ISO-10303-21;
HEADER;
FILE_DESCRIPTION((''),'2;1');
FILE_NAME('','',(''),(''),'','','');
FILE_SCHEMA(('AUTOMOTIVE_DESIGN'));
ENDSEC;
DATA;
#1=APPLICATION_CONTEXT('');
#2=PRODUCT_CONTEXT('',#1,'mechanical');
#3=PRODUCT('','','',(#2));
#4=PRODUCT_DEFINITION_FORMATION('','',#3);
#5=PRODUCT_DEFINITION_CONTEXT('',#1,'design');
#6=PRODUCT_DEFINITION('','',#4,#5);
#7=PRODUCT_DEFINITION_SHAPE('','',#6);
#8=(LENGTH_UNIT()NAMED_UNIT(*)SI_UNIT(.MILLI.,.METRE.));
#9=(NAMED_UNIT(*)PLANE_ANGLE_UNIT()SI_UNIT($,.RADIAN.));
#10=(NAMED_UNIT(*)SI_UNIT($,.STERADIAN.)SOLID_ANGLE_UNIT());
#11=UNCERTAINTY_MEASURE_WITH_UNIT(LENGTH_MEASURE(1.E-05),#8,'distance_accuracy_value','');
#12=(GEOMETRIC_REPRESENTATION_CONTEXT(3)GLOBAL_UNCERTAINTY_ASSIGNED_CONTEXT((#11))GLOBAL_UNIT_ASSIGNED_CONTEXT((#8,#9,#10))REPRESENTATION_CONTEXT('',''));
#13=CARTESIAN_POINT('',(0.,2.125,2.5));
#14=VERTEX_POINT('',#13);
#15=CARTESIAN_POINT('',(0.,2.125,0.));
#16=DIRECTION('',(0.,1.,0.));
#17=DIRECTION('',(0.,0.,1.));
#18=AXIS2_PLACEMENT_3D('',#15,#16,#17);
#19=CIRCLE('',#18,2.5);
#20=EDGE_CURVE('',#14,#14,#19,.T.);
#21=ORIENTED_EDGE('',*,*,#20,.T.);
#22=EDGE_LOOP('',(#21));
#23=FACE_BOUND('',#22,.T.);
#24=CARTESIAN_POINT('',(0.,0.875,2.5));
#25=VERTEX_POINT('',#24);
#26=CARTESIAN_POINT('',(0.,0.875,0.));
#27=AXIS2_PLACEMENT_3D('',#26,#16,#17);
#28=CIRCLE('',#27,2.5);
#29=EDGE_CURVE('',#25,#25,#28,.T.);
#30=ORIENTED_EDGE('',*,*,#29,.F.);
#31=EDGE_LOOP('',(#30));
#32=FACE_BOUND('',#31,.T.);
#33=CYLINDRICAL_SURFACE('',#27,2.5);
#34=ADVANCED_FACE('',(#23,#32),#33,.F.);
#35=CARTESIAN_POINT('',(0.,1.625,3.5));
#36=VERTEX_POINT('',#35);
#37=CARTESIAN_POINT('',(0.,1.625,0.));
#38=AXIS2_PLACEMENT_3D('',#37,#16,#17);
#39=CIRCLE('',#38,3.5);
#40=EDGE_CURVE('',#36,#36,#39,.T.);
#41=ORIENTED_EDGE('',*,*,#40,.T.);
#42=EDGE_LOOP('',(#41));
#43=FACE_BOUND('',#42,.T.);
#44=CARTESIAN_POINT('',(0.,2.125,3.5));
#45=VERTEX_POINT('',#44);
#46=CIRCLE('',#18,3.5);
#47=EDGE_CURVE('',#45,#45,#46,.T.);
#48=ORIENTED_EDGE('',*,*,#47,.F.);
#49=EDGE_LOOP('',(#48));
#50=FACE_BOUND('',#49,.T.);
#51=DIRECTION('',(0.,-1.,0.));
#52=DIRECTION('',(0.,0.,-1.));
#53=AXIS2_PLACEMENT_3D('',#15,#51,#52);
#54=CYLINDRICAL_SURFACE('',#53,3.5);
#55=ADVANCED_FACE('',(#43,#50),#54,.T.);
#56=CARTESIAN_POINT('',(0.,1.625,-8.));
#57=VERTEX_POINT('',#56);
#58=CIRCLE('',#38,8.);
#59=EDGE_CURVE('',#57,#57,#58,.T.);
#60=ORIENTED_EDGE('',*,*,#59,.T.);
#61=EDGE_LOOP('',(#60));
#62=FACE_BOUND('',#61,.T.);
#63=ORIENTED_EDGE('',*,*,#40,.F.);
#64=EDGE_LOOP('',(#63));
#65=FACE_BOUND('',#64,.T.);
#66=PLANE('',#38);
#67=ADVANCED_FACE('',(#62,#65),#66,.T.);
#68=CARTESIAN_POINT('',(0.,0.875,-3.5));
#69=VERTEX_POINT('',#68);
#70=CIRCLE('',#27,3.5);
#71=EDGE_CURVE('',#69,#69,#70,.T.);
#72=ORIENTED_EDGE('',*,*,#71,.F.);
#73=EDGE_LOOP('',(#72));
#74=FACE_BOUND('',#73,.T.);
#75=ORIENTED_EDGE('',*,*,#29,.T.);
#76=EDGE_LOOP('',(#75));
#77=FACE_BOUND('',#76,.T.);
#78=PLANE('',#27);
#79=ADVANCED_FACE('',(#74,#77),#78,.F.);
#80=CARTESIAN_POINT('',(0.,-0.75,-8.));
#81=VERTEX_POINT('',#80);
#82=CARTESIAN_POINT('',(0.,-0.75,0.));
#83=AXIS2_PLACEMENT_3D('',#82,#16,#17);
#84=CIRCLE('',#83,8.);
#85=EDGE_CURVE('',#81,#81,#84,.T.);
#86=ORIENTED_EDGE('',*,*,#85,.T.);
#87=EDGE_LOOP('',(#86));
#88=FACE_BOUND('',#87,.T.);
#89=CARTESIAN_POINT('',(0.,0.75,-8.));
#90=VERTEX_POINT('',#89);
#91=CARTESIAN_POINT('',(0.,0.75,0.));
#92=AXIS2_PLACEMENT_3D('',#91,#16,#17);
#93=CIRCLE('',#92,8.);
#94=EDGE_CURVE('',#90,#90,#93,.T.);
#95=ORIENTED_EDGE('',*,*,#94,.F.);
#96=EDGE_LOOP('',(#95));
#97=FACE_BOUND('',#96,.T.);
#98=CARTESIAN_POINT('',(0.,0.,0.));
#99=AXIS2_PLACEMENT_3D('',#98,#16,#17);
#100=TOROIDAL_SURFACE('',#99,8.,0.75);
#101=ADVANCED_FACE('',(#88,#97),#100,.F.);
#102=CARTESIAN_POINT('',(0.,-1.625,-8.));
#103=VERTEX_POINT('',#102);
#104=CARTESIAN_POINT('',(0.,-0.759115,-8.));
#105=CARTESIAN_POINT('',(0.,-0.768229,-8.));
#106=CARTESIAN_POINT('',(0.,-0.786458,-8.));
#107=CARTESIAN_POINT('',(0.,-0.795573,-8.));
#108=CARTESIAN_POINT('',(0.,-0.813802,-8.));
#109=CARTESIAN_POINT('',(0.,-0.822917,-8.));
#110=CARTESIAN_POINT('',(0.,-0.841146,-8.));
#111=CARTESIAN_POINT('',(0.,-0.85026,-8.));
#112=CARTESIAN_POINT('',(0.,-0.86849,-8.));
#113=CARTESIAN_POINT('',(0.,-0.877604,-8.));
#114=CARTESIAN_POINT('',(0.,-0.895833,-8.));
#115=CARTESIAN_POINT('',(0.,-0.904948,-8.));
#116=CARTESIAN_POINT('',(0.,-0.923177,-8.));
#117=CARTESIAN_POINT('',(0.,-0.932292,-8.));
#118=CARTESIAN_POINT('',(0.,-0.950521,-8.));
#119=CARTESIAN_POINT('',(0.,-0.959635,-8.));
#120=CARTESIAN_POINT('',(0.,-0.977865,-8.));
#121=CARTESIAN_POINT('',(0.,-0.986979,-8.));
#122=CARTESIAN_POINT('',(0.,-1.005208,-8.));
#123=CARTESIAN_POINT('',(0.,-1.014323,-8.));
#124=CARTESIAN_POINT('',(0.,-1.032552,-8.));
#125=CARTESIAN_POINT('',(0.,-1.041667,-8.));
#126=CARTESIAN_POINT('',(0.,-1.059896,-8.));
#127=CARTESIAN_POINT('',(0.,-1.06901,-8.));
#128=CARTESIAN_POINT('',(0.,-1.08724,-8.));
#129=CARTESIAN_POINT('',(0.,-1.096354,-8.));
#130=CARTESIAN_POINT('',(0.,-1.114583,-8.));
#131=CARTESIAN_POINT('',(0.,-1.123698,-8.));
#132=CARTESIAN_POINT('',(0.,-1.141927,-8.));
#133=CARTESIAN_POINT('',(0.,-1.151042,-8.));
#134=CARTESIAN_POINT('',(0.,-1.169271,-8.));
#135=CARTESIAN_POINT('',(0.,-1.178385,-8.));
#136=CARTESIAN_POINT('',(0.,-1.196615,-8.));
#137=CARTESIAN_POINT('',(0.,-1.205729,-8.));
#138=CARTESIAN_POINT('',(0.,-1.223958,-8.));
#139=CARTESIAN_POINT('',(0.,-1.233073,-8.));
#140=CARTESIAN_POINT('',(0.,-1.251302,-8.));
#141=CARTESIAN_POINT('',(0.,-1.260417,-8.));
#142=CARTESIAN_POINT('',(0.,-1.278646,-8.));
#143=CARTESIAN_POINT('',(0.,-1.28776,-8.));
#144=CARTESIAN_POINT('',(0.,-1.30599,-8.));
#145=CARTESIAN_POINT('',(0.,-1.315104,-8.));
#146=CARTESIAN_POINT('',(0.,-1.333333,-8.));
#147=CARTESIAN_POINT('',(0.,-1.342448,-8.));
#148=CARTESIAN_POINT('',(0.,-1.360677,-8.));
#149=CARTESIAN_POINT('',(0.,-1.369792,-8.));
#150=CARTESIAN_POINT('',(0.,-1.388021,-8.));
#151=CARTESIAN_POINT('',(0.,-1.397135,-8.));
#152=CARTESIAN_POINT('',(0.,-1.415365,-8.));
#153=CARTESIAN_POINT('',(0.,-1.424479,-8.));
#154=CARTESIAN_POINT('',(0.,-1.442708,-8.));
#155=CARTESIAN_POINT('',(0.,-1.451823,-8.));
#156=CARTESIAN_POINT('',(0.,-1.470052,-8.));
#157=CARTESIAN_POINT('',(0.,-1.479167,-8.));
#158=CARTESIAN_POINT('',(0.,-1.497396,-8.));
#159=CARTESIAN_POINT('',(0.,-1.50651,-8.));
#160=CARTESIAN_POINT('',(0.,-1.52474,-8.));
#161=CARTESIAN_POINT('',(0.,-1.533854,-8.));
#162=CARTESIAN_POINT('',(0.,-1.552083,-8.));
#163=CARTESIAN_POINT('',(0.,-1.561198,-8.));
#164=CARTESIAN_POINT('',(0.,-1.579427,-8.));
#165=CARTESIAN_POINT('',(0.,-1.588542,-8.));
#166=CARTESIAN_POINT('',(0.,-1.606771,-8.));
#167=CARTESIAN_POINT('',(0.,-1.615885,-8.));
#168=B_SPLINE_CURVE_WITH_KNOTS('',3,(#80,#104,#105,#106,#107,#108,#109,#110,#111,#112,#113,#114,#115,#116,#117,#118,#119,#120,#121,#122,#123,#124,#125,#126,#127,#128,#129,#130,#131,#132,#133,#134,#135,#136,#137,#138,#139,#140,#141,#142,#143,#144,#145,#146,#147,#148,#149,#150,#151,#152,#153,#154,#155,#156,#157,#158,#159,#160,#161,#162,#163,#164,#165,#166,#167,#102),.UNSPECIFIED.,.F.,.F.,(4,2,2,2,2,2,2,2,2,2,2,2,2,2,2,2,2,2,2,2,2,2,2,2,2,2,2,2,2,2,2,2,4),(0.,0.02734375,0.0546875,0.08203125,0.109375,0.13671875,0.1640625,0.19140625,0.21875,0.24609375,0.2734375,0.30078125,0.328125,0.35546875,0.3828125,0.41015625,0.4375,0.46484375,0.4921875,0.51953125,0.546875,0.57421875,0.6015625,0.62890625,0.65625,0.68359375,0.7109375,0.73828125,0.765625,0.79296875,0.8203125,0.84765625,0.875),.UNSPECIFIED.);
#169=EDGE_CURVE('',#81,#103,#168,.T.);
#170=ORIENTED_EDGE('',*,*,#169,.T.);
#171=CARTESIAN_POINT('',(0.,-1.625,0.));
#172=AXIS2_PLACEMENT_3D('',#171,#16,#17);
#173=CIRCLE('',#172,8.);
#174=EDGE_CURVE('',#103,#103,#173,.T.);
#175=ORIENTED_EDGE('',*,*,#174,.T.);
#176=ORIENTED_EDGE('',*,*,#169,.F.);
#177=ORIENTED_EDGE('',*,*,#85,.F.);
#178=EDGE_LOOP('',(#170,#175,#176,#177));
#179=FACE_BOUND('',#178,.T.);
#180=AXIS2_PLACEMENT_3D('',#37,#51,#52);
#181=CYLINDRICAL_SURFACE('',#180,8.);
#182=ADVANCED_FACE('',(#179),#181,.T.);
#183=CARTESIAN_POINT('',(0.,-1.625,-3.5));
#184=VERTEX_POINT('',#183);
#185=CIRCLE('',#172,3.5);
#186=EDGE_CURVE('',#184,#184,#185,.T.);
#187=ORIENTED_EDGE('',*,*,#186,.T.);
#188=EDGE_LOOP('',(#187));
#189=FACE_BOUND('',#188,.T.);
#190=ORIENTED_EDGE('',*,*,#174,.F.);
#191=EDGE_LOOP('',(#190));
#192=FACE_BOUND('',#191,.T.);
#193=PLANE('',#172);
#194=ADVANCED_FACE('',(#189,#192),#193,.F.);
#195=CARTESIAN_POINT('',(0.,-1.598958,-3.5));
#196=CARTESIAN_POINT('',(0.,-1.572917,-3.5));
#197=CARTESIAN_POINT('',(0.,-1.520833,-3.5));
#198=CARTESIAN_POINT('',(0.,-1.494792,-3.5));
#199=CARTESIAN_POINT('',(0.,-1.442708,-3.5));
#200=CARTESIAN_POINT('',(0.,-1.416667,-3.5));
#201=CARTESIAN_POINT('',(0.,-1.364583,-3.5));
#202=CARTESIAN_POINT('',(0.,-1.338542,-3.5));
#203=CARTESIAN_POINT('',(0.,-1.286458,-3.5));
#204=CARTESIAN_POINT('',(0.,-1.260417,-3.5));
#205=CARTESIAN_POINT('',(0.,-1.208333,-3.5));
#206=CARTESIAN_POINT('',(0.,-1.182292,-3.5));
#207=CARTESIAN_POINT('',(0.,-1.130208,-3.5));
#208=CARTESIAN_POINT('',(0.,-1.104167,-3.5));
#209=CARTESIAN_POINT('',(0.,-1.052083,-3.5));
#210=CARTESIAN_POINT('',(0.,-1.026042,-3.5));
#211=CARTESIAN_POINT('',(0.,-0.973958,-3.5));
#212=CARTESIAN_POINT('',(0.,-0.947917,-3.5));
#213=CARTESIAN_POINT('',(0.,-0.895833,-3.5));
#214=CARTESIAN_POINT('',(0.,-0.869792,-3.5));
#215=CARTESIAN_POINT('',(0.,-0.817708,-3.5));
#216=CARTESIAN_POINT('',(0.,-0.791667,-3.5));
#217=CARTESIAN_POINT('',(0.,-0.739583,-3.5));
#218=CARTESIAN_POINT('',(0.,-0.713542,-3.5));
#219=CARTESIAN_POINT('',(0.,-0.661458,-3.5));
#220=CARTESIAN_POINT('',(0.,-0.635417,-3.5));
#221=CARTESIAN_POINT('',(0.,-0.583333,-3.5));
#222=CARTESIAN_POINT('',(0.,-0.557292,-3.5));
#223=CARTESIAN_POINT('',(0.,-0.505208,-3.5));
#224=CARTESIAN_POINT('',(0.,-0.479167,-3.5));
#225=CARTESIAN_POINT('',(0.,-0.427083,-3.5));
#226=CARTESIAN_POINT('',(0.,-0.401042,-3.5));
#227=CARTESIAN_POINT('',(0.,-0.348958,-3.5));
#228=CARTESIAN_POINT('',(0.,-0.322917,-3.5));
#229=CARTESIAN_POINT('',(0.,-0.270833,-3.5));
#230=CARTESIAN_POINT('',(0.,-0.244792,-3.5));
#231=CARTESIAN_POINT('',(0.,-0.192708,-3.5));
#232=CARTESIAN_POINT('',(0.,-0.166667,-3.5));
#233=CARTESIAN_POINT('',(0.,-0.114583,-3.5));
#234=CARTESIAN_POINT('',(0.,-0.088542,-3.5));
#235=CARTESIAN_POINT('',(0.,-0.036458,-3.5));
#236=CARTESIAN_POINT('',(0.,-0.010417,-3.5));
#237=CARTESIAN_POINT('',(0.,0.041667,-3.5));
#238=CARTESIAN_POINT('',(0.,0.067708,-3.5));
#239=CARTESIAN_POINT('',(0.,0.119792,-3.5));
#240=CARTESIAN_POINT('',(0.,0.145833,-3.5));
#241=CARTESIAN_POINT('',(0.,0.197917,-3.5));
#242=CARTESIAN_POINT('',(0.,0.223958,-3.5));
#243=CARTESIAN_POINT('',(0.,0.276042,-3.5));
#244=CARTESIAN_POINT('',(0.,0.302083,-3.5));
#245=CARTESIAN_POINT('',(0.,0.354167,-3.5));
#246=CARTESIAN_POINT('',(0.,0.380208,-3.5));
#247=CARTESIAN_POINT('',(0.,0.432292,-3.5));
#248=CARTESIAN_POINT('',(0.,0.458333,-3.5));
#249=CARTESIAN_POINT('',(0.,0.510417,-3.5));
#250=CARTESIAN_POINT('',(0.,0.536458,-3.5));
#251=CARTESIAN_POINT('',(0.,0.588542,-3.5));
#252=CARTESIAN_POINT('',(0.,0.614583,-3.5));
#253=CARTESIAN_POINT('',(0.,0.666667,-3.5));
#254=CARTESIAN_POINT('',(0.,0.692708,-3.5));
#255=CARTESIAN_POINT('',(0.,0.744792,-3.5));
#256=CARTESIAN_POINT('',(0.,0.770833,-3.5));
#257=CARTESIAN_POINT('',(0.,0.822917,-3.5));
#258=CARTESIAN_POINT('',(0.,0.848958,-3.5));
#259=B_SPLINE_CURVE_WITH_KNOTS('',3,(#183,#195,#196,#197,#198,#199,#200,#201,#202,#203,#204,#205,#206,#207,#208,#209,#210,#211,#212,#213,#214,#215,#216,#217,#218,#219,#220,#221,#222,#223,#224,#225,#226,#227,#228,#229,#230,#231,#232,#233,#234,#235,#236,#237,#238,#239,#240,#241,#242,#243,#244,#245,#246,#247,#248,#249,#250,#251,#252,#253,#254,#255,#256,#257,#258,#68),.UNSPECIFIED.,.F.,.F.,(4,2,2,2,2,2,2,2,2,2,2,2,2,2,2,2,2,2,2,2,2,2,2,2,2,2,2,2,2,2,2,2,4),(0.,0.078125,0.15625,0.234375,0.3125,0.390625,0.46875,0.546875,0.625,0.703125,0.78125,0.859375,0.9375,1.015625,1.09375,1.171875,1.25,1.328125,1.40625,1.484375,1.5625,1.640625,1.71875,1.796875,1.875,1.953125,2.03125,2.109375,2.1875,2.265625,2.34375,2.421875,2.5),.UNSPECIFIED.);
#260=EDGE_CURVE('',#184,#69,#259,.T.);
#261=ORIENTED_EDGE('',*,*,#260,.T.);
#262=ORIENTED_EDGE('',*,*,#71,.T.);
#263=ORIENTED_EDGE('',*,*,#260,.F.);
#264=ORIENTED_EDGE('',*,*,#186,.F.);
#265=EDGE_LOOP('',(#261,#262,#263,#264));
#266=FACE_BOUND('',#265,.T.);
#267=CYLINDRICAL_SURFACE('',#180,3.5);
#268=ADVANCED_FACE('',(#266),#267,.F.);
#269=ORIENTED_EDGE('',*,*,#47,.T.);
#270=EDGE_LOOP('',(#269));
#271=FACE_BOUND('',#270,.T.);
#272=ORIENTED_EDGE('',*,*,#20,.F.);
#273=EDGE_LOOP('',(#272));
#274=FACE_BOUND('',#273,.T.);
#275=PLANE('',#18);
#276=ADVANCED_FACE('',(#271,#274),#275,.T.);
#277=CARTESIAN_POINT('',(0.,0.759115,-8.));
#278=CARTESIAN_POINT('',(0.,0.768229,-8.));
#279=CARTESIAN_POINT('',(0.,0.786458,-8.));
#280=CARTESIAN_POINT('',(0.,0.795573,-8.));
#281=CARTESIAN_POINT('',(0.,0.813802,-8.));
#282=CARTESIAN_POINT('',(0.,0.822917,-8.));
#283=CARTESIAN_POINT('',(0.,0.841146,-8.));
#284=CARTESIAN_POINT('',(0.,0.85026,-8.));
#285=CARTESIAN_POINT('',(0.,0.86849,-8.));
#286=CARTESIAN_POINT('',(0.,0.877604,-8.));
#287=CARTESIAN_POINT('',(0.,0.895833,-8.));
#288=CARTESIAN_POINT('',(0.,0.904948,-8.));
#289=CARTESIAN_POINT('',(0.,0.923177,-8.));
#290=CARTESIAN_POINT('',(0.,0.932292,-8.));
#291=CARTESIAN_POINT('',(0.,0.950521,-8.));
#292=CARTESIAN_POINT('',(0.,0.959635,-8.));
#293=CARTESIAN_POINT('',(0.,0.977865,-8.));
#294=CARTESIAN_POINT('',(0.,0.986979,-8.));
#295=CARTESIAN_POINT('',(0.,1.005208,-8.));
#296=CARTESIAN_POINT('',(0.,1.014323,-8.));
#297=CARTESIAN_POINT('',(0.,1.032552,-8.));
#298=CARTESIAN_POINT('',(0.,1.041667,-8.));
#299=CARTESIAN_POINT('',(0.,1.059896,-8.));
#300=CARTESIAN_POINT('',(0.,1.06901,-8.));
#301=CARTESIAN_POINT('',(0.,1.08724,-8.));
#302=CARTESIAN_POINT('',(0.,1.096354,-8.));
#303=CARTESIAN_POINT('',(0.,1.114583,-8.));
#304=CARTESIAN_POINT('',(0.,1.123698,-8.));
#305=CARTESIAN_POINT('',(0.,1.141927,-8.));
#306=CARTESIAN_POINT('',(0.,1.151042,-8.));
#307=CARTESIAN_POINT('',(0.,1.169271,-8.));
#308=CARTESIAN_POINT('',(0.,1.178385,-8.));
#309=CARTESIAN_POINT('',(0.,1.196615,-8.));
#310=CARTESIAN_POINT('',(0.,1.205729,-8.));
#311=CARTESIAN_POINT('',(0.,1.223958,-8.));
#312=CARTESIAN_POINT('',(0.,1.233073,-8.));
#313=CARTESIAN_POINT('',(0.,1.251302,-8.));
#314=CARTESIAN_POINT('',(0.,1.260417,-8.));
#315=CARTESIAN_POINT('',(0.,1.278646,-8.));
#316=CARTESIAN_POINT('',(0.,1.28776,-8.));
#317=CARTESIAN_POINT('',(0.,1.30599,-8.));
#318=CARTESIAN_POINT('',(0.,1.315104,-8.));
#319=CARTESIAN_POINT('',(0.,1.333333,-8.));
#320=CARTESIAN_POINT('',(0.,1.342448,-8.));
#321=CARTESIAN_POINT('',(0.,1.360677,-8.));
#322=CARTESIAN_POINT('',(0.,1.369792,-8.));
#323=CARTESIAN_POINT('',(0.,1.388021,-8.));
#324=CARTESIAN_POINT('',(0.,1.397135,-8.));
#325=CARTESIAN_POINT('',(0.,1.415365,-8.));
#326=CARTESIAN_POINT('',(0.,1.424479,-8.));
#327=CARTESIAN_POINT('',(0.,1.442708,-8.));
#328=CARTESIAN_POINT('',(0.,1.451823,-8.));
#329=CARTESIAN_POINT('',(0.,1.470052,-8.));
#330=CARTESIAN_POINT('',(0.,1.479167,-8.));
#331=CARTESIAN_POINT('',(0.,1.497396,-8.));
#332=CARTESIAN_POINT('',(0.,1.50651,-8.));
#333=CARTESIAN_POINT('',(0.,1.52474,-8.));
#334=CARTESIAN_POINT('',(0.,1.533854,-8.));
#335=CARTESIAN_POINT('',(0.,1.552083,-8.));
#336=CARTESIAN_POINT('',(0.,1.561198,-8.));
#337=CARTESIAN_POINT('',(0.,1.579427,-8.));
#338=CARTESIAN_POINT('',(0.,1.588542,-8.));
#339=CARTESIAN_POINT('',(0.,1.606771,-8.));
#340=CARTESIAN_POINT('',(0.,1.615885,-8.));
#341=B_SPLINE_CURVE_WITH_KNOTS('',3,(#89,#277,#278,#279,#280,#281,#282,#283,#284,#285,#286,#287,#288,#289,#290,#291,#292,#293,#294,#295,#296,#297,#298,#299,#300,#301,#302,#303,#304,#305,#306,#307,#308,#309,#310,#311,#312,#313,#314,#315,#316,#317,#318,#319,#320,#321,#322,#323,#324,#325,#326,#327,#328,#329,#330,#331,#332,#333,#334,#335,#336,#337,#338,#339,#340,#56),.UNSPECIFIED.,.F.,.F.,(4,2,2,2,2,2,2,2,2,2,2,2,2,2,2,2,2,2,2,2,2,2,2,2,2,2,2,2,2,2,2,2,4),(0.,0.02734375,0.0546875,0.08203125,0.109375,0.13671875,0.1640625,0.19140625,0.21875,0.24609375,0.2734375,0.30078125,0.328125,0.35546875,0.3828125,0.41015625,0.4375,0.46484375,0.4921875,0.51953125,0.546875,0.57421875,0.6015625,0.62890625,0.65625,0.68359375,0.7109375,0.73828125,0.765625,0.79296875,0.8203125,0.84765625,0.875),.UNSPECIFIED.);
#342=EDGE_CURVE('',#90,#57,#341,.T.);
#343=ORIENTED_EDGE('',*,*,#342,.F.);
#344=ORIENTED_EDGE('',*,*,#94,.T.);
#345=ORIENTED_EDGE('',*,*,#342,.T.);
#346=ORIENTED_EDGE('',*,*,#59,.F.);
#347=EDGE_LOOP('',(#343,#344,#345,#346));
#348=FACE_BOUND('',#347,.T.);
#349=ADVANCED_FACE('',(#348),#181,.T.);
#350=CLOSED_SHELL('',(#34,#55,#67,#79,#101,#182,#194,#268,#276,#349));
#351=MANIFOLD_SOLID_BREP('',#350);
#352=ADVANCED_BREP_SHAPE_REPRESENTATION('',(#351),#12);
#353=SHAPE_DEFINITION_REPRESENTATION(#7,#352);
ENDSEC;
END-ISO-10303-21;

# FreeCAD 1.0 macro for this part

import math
import FreeCAD as App
import Part
import Sketcher
Q = App.Units.Quantity

doc = App.newDocument("Part")
body = doc.addObject("PartDesign::Body", "Body")

# Sketch on XZ plane
sketch1 = body.newObject("Sketcher::SketchObject", "Sketch")
sketch1.AttachmentSupport = (doc.getObject("XZ_Plane"), [""])
sketch1.MapMode = "FlatFace"
sketch1.addGeometry([
    Part.Circle(App.Vector(0, 0, 0), App.Vector(0, 0, 1), 8),
    Part.Circle(App.Vector(0, 0, 0), App.Vector(0, 0, 1), 3.5),
], False)
sketch1.addConstraint([
    Sketcher.Constraint("Coincident", 0, 3, -1, 1),
    Sketcher.Constraint("Coincident", 1, 3, -1, 1),
    Sketcher.Constraint("Diameter", 0, Q("16 mm")),
    Sketcher.Constraint("Diameter", 1, Q("7 mm")),
])
pad1 = body.newObject("PartDesign::Pad", "Pad")
pad1.Profile = sketch1
pad1.Length = 3.25
pad1.Midplane = True

# Sketch on YZ plane
sketch2 = body.newObject("Sketcher::SketchObject", "Sketch001")
sketch2.AttachmentSupport = (doc.getObject("YZ_Plane"), [""])
sketch2.MapMode = "FlatFace"
sketch2.addGeometry([
    Part.LineSegment(App.Vector(0.75, 8, 0), App.Vector(-0.75, 8, 0)),
    Part.ArcOfCircle(Part.Circle(App.Vector(0, 8, 0), App.Vector(0, 0, 1), 0.75), math.radians(180), math.radians(360)),
], False)
sketch2.addConstraint([
    Sketcher.Constraint("Coincident", 0, 1, 1, 2),
    Sketcher.Constraint("Coincident", 1, 1, 0, 2),
    Sketcher.Constraint("Horizontal", 0),
    Sketcher.Constraint("PointOnObject", 1, 3, -2),
    Sketcher.Constraint("Horizontal", 1, 3, 0, 1),
    Sketcher.Constraint("Radius", 1, Q("0.75 mm")),
    Sketcher.Constraint("DistanceY", -1, 1, 1, 3, Q("8 mm")),
])
groove = body.newObject("PartDesign::Groove", "Groove")
groove.Profile = sketch2
groove.ReferenceAxis = (sketch2, ["H_Axis"])
groove.Angle = 360

# Sketch on XZ plane
sketch3 = body.newObject("Sketcher::SketchObject", "Sketch002")
sketch3.AttachmentSupport = (doc.getObject("XZ_Plane"), [""])
sketch3.MapMode = "FlatFace"
sketch3.AttachmentOffset = App.Placement(App.Vector(0, 0, -0.875), App.Rotation())
sketch3.addGeometry([
    Part.Circle(App.Vector(0, 0, 0), App.Vector(0, 0, 1), 3.5),
    Part.Circle(App.Vector(0, 0, 0), App.Vector(0, 0, 1), 2.5),
], False)
sketch3.addConstraint([
    Sketcher.Constraint("Coincident", 0, 3, -1, 1),
    Sketcher.Constraint("Coincident", 1, 3, -1, 1),
    Sketcher.Constraint("Diameter", 0, Q("7 mm")),
    Sketcher.Constraint("Diameter", 1, Q("5 mm")),
])
pad2 = body.newObject("PartDesign::Pad", "Pad001")
pad2.Profile = sketch3
pad2.Length = 0.75
pad2.Reversed = True

# Sketch on XZ plane
sketch4 = body.newObject("Sketcher::SketchObject", "Sketch003")
sketch4.AttachmentSupport = (doc.getObject("XZ_Plane"), [""])
sketch4.MapMode = "FlatFace"
sketch4.AttachmentOffset = App.Placement(App.Vector(0, 0, -1.625), App.Rotation())
sketch4.addGeometry([
    Part.Circle(App.Vector(0, 0, 0), App.Vector(0, 0, 1), 3.5),
    Part.Circle(App.Vector(0, 0, 0), App.Vector(0, 0, 1), 2.5),
], False)
sketch4.addConstraint([
    Sketcher.Constraint("Coincident", 0, 3, -1, 1),
    Sketcher.Constraint("Coincident", 1, 3, -1, 1),
    Sketcher.Constraint("Diameter", 0, Q("7 mm")),
    Sketcher.Constraint("Diameter", 1, Q("5 mm")),
])
pad3 = body.newObject("PartDesign::Pad", "Pad002")
pad3.Profile = sketch4
pad3.Length = 0.5
pad3.Reversed = True

doc.recompute()
